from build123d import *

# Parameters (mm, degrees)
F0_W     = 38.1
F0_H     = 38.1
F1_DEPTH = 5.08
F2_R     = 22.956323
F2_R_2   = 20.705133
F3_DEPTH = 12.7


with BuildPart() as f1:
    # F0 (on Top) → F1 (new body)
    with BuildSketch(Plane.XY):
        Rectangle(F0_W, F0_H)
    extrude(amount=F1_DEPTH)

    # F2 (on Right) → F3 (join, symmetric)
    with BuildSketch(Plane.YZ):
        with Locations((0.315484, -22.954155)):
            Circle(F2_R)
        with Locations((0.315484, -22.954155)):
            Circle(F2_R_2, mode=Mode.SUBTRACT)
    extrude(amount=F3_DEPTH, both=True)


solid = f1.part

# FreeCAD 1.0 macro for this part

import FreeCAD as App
import Part
import Sketcher
from FreeCAD import Vector
Q = App.Units.Quantity


def add_polygon(sketch, points):
    """Adds a closed chain of lines whose ends are joined by coincident constraints."""
    first, n = sketch.GeometryCount, len(points)
    for a, b in zip(points, points[1:] + points[:1]):
        sketch.addGeometry(Part.LineSegment(App.Vector(*a, 0), App.Vector(*b, 0)), False)
    for i in range(n):
        sketch.addConstraint(Sketcher.Constraint("Coincident", first + i, 2, first + (i + 1) % n, 1))

doc = App.newDocument("Part")
params = doc.addObject("Spreadsheet::Sheet", "Params")
for row, (alias, value) in enumerate([
    ("sketch1_width", "1.5 in"),
    ("pad1_length", "0.2 in"),
    ("pad2_length", "1 in"),
], start=1):
    params.set(f"A{row}", alias)
    params.set(f"B{row}", "=" + value)
    params.setAlias(f"B{row}", alias)

body = doc.addObject("PartDesign::Body", "Body")

# Sketch on XY plane
sketch1 = doc.addObject("Sketcher::SketchObject", "Sketch")
body.addObject(sketch1)
sketch1.AttachmentSupport = (doc.XY_Plane, [""])
sketch1.MapMode = "FlatFace"
add_polygon(sketch1, [(-19, 19), (-19, -19), (19, -19), (19, 19)])  # lines 0-3
sketch1.addConstraint(Sketcher.Constraint("Vertical", 0))
sketch1.addConstraint(Sketcher.Constraint("Horizontal", 1))
sketch1.addConstraint(Sketcher.Constraint("Vertical", 2))
sketch1.addConstraint(Sketcher.Constraint("Horizontal", 3))
sketch1.addConstraint(Sketcher.Constraint("Symmetric", 0, 2, 2, 2, -1, 1))
sketch1.addConstraint(Sketcher.Constraint("Equal", 3, 0))
sketch1.addConstraint(Sketcher.Constraint("DistanceX", 1, 1, 1, 2, Q("1.5 in")))
sketch1.setExpression("Constraints[10]", "Params.sketch1_width")
pad1 = doc.addObject("PartDesign::Pad", "Pad")
body.addObject(pad1)
pad1.Profile = sketch1
pad1.setExpression("Length", "Params.pad1_length")

# Sketch on YZ plane
sketch2 = doc.addObject("Sketcher::SketchObject", "Sketch001")
body.addObject(sketch2)
sketch2.AttachmentSupport = (doc.YZ_Plane, [""])
sketch2.MapMode = "FlatFace"
sketch2.addGeometry(Part.Circle(Vector(0, -23, 0), Vector(0, 0, 1), 23), False)
sketch2.addGeometry(Part.Circle(Vector(0, -23, 0), Vector(0, 0, 1), 21), False)
sketch2.addConstraint(Sketcher.Constraint("Coincident", 1, 3, 0, 3))
sketch2.addConstraint(Sketcher.Constraint("Diameter", 0, 45.912646))
sketch2.addConstraint(Sketcher.Constraint("Diameter", 1, 41.410266))
sketch2.addConstraint(Sketcher.Constraint("DistanceX", -1, 1, 0, 3, 0.315484))
sketch2.addConstraint(Sketcher.Constraint("DistanceY", 0, 3, -1, 1, 22.954155))
pad2 = doc.addObject("PartDesign::Pad", "Pad001")
body.addObject(pad2)
pad2.Profile = sketch2
pad2.setExpression("Length", "Params.pad2_length")
pad2.Midplane = True

doc.recompute()
